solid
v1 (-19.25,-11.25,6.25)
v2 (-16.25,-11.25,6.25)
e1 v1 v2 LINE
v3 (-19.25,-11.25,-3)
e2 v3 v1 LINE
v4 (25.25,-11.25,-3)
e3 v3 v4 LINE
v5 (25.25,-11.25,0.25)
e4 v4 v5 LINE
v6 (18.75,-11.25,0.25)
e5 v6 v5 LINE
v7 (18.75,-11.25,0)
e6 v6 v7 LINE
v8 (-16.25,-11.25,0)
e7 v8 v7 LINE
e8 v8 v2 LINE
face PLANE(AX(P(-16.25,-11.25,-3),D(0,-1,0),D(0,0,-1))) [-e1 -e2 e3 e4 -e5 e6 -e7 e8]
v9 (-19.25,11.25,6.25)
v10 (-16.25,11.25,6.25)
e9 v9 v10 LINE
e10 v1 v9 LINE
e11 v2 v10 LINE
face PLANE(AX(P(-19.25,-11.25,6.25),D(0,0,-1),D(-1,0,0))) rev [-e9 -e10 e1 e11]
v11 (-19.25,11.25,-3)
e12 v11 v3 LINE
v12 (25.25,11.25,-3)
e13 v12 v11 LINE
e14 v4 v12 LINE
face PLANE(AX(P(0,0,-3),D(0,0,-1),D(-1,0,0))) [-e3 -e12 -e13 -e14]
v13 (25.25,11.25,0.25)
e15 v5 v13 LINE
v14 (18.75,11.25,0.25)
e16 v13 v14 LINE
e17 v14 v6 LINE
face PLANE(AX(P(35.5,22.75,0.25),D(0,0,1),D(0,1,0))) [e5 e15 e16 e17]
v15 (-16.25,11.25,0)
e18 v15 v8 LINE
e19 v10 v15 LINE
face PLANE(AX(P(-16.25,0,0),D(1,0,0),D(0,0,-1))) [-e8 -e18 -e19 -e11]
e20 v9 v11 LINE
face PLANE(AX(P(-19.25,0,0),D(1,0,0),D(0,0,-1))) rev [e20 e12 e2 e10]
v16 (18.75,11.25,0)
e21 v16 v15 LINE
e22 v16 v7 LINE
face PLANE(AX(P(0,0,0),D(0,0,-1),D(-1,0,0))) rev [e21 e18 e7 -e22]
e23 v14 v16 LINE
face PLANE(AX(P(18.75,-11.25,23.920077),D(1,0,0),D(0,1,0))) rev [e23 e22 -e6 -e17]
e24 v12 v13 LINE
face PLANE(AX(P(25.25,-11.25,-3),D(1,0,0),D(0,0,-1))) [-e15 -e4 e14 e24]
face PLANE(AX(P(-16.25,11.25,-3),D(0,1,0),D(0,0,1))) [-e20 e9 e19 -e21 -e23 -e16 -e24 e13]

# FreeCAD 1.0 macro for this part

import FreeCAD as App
import Part
import Sketcher


def add_polygon(sketch, points):
    """Adds a closed chain of lines whose ends are joined by coincident constraints."""
    first, n = sketch.GeometryCount, len(points)
    for a, b in zip(points, points[1:] + points[:1]):
        sketch.addGeometry(Part.LineSegment(App.Vector(*a, 0), App.Vector(*b, 0)), False)
    for i in range(n):
        sketch.addConstraint(Sketcher.Constraint("Coincident", first + i, 2, first + (i + 1) % n, 1))

doc = App.newDocument("Part")
body = doc.addObject("PartDesign::Body", "Body")

sketch1 = body.newObject("Sketcher::SketchObject", "Sketch")
sketch1.AttachmentSupport = (doc.getObject("XY_Plane"), [""])
sketch1.MapMode = "FlatFace"
add_polygon(sketch1, [(-16, 11), (-16, -11), (25, -11), (25, 11)])
sketch1.addConstraint(Sketcher.Constraint("Vertical", 0))
sketch1.addConstraint(Sketcher.Constraint("Horizontal", 1))
sketch1.addConstraint(Sketcher.Constraint("Vertical", 2))
sketch1.addConstraint(Sketcher.Constraint("Horizontal", 3))
sketch1.addConstraint(Sketcher.Constraint("DistanceX", 1, 1, 1, 2, 41.5))
sketch1.addConstraint(Sketcher.Constraint("DistanceY", 0, 2, 0, 1, 22.5))
sketch1.addConstraint(Sketcher.Constraint("DistanceX", 0, 2, -1, 1, 16.25))
sketch1.addConstraint(Sketcher.Constraint("DistanceY", 0, 2, -1, 1, 11.25))
pad1 = body.newObject("PartDesign::Pad", "Pad")
pad1.Profile = sketch1
pad1.Length = 3
pad1.Reversed = True

sketch2 = body.newObject("Sketcher::SketchObject", "Sketch001")
sketch2.AttachmentSupport = (doc.getObject("YZ_Plane"), [""])
sketch2.MapMode = "FlatFace"
sketch2.AttachmentOffset = App.Placement(App.Vector(0, 0, -16.25), App.Rotation())
add_polygon(sketch2, [(11, -3), (-11, -3), (-11, 6), (11, 6)])
sketch2.addConstraint(Sketcher.Constraint("Horizontal", 0))
sketch2.addConstraint(Sketcher.Constraint("Vertical", 1))
sketch2.addConstraint(Sketcher.Constraint("Horizontal", 2))
sketch2.addConstraint(Sketcher.Constraint("Vertical", 3))
sketch2.addConstraint(Sketcher.Constraint("DistanceX", 0, 2, 0, 1, 22.5))
sketch2.addConstraint(Sketcher.Constraint("DistanceY", 0, 2, -1, 1, 3.0))
sketch2.addConstraint(Sketcher.Constraint("DistanceY", 1, 1, 1, 2, 9.25))
sketch2.addConstraint(Sketcher.Constraint("DistanceX", 0, 2, -1, 1, 11.25))
pad2 = body.newObject("PartDesign::Pad", "Pad001")
pad2.Profile = sketch2
pad2.Length = 3
pad2.Reversed = True

sketch3 = body.newObject("Sketcher::SketchObject", "Sketch002")
sketch3.AttachmentSupport = (doc.getObject("XY_Plane"), [""])
sketch3.MapMode = "FlatFace"
sketch3.AttachmentOffset = App.Placement(App.Vector(0, 0, -3), App.Rotation())
add_polygon(sketch3, [(19, 11), (19, -11), (25, -11), (25, 11)])
sketch3.addConstraint(Sketcher.Constraint("Vertical", 0))
sketch3.addConstraint(Sketcher.Constraint("Horizontal", 1))
sketch3.addConstraint(Sketcher.Constraint("Vertical", 2))
sketch3.addConstraint(Sketcher.Constraint("Horizontal", 3))
sketch3.addConstraint(Sketcher.Constraint("DistanceX", 1, 1, 1, 2, 6.5))
sketch3.addConstraint(Sketcher.Constraint("DistanceY", 0, 2, 0, 1, 22.5))
sketch3.addConstraint(Sketcher.Constraint("DistanceX", -1, 1, 0, 2, 18.75))
sketch3.addConstraint(Sketcher.Constraint("DistanceY", 0, 2, -1, 1, 11.25))
pad3 = body.newObject("PartDesign::Pad", "Pad002")
pad3.Profile = sketch3
pad3.Length = 3.25

doc.recompute()
